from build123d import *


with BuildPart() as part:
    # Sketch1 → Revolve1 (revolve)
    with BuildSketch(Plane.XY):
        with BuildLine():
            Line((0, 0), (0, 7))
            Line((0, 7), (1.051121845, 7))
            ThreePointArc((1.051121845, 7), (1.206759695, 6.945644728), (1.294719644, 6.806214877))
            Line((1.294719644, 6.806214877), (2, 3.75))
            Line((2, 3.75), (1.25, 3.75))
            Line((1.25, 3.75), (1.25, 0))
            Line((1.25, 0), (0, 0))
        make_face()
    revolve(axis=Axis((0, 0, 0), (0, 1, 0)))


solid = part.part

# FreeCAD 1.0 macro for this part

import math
import FreeCAD as App
import Part
import Sketcher

V = App.Vector

doc = App.newDocument("Part")
body = doc.addObject("PartDesign::Body", "Body")

sketch1 = body.newObject("Sketcher::SketchObject", "Sketch")
sketch1.AttachmentSupport = (doc.getObject("XY_Plane"), [""])
sketch1.MapMode = "FlatFace"
sketch1.addGeometry([
    Part.LineSegment(V(0, 7, 0), V(0, 0, 0)),
    Part.LineSegment(V(0, 0, 0), V(1.25, 0, 0)),
    Part.LineSegment(V(1.25, 0, 0), V(1.25, 3.75, 0)),
    Part.LineSegment(V(1.25, 3.75, 0), V(2, 3.75, 0)),
    Part.LineSegment(V(2, 3.75, 0), V(1.29, 6.81, 0)),
    Part.ArcOfCircle(Part.Circle(V(1.05, 6.75, 0), V(0, 0, 1), 0.25), math.radians(13), math.radians(90)),
    Part.LineSegment(V(1.05, 7, 0), V(0, 7, 0)),
], False)
sketch1.addConstraint([
    Sketcher.Constraint("Coincident", 0, 2, 1, 1),
    Sketcher.Constraint("Coincident", 1, 2, 2, 1),
    Sketcher.Constraint("Coincident", 2, 2, 3, 1),
    Sketcher.Constraint("Coincident", 3, 2, 4, 1),
    Sketcher.Constraint("Tangent", 4, 2, 5, 1),
    Sketcher.Constraint("Tangent", 5, 2, 6, 1),
    Sketcher.Constraint("Coincident", 6, 2, 0, 1),
    Sketcher.Constraint("Vertical", 0),
    Sketcher.Constraint("Horizontal", 1),
    Sketcher.Constraint("Vertical", 2),
    Sketcher.Constraint("Horizontal", 3),
    Sketcher.Constraint("Horizontal", 6),
    Sketcher.Constraint("Coincident", 0, 2, -1, 1),
    Sketcher.Constraint("DistanceY", 0, 2, 0, 1, 7.0),
    Sketcher.Constraint("Radius", 5, 0.25),
    Sketcher.Constraint("DistanceX", -1, 1, 3, 2, 2.0),
    Sketcher.Constraint("DistanceY", 2, 2, 5, 3, 3.0),
    Sketcher.Constraint("DistanceX", 1, 1, 1, 2, 1.25),
    Sketcher.Constraint("DistanceX", 6, 2, 6, 1, 1.051122),
])
revolution = body.newObject("PartDesign::Revolution", "Revolution")
revolution.Profile = sketch1
revolution.ReferenceAxis = (sketch1, ["V_Axis"])
revolution.Angle = 360

doc.recompute()
